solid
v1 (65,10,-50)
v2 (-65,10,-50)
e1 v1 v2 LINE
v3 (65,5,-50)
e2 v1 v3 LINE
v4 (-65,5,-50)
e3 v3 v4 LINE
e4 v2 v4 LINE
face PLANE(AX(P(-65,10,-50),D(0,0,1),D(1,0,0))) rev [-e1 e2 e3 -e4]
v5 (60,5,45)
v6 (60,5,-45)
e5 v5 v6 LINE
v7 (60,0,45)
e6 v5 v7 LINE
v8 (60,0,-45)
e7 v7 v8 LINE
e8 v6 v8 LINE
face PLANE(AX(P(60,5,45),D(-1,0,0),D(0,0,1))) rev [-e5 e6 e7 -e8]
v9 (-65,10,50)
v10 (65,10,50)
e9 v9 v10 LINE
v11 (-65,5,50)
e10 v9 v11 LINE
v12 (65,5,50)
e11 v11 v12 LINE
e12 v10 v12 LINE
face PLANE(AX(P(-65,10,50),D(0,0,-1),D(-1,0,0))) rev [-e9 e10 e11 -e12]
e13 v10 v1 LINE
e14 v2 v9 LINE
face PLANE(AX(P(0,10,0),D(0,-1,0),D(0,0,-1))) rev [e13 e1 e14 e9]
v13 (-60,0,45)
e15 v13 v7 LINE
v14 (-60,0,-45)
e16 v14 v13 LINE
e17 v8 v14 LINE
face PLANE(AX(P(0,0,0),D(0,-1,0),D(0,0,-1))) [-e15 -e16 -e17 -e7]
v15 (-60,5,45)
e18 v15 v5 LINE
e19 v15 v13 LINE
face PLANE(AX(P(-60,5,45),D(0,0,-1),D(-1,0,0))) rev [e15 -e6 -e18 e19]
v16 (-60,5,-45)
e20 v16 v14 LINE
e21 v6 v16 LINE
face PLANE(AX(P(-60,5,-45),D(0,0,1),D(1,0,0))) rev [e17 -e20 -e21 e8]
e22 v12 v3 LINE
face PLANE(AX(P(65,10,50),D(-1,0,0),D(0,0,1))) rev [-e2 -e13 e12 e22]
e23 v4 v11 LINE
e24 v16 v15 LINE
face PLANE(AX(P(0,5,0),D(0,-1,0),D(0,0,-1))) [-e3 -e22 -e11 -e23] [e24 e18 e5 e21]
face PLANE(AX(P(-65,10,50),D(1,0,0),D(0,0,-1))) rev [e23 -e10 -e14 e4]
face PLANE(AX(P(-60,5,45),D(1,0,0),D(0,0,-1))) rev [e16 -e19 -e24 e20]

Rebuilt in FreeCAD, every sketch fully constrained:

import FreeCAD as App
import Part
import Sketcher


def add_polygon(sketch, points):
    """Adds a closed chain of lines whose ends are joined by coincident constraints."""
    first, n = sketch.GeometryCount, len(points)
    for a, b in zip(points, points[1:] + points[:1]):
        sketch.addGeometry(Part.LineSegment(App.Vector(*a, 0), App.Vector(*b, 0)), False)
    for i in range(n):
        sketch.addConstraint(Sketcher.Constraint("Coincident", first + i, 2, first + (i + 1) % n, 1))

doc = App.newDocument("Part")
params = doc.addObject("Spreadsheet::Sheet", "Params")
for row, (alias, value) in enumerate([
    ("sketch1_width", "120 mm"),
    ("sketch1_height", "90 mm"),
    ("pad1_length", "5 mm"),
    ("sketch2_width", "130 mm"),
    ("sketch2_height", "100 mm"),
    ("pad2_length", "5 mm"),
], start=1):
    params.set(f"A{row}", alias)
    params.set(f"B{row}", "=" + value)
    params.setAlias(f"B{row}", alias)

body = doc.addObject("PartDesign::Body", "Body")

# Sketch on XZ plane
sketch1 = doc.addObject("Sketcher::SketchObject", "Sketch")
body.addObject(sketch1)
sketch1.AttachmentSupport = (doc.XZ_Plane, [""])
sketch1.MapMode = "FlatFace"
add_polygon(sketch1, [(-60, -45), (-60, 45), (60, 45), (60, -45)])  # lines 0-3
sketch1.addConstraint([
    Sketcher.Constraint("Vertical", 0),
    Sketcher.Constraint("Horizontal", 1),
    Sketcher.Constraint("Vertical", 2),
    Sketcher.Constraint("Horizontal", 3),
    Sketcher.Constraint("Symmetric", 0, 2, 2, 2, -1, 1),
    Sketcher.Constraint("DistanceX", 1, 1, 1, 2, 120.0),
    Sketcher.Constraint("DistanceY", 0, 1, 0, 2, 90.0),
])
sketch1.setExpression("Constraints[9]", "Params.sketch1_width")
sketch1.setExpression("Constraints[10]", "Params.sketch1_height")
pad1 = doc.addObject("PartDesign::Pad", "Pad")
body.addObject(pad1)
pad1.Profile = sketch1
pad1.setExpression("Length", "Params.pad1_length")
pad1.Reversed = True

# Sketch on XZ plane
sketch2 = doc.addObject("Sketcher::SketchObject", "Sketch001")
body.addObject(sketch2)
sketch2.AttachmentSupport = (doc.XZ_Plane, [""])
sketch2.MapMode = "FlatFace"
sketch2.AttachmentOffset = App.Placement(App.Vector(0, 0, -5), App.Rotation())
add_polygon(sketch2, [(-65, -50), (-65, 50), (65, 50), (65, -50)])  # lines 0-3
sketch2.addConstraint([
    Sketcher.Constraint("Vertical", 0),
    Sketcher.Constraint("Horizontal", 1),
    Sketcher.Constraint("Vertical", 2),
    Sketcher.Constraint("Horizontal", 3),
    Sketcher.Constraint("Symmetric", 0, 2, 2, 2, -1, 1),
    Sketcher.Constraint("DistanceX", 1, 1, 1, 2, 130.0),
    Sketcher.Constraint("DistanceY", 0, 1, 0, 2, 100.0),
])
sketch2.setExpression("Constraints[9]", "Params.sketch2_width")
sketch2.setExpression("Constraints[10]", "Params.sketch2_height")
pad2 = doc.addObject("PartDesign::Pad", "Pad001")
body.addObject(pad2)
pad2.Profile = sketch2
pad2.setExpression("Length", "Params.pad2_length")
pad2.Reversed = True

doc.recompute()
